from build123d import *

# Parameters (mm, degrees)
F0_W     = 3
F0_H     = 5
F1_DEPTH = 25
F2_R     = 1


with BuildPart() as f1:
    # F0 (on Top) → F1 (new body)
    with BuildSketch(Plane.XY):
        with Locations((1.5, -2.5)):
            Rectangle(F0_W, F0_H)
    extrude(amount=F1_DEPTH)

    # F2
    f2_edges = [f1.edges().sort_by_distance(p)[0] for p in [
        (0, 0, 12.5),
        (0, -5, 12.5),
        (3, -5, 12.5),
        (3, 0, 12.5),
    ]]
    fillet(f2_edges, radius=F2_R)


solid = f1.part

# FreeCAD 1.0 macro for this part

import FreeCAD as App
import Part
import Sketcher

V = App.Vector


def edges_at(feature, points):
    """Names of the edges that pass closest to the given points."""
    edges = feature.Shape.Edges
    near = lambda p: min(range(len(edges)), key=lambda i: edges[i].distToShape(Part.Vertex(*p))[0])
    return sorted({f"Edge{near(p) + 1}" for p in points})

doc = App.newDocument("Part")
body = doc.addObject("PartDesign::Body", "Body")

sketch1 = body.newObject("Sketcher::SketchObject", "Sketch")
sketch1.AttachmentSupport = (doc.getObject("XY_Plane"), [""])
sketch1.MapMode = "FlatFace"
sketch1.addGeometry([
    Part.LineSegment(V(0, 0, 0), V(0, -5, 0)),
    Part.LineSegment(V(0, -5, 0), V(3, -5, 0)),
    Part.LineSegment(V(3, -5, 0), V(3, 0, 0)),
    Part.LineSegment(V(3, 0, 0), V(0, 0, 0)),
], False)
sketch1.addConstraint([
    Sketcher.Constraint("Coincident", 0, 2, 1, 1),
    Sketcher.Constraint("Coincident", 1, 2, 2, 1),
    Sketcher.Constraint("Coincident", 2, 2, 3, 1),
    Sketcher.Constraint("Coincident", 3, 2, 0, 1),
    Sketcher.Constraint("Vertical", 0),
    Sketcher.Constraint("Horizontal", 1),
    Sketcher.Constraint("Vertical", 2),
    Sketcher.Constraint("Horizontal", 3),
    Sketcher.Constraint("Coincident", 3, 2, -1, 1),
    Sketcher.Constraint("DistanceX", 1, 1, 1, 2, 3.0),
    Sketcher.Constraint("DistanceY", 0, 2, 0, 1, 5.0),
])
pad1 = body.newObject("PartDesign::Pad", "Pad")
pad1.Profile = sketch1
pad1.Length = 25
doc.recompute()

fillet = body.newObject("PartDesign::Fillet", "Fillet")
fillet.Base = (pad1, edges_at(pad1, [
    (0, 0, 12.5),
    (0, -5, 12.5),
    (3, -5, 12.5),
    (3, 0, 12.5),
]))
fillet.Radius = 1

doc.recompute()
